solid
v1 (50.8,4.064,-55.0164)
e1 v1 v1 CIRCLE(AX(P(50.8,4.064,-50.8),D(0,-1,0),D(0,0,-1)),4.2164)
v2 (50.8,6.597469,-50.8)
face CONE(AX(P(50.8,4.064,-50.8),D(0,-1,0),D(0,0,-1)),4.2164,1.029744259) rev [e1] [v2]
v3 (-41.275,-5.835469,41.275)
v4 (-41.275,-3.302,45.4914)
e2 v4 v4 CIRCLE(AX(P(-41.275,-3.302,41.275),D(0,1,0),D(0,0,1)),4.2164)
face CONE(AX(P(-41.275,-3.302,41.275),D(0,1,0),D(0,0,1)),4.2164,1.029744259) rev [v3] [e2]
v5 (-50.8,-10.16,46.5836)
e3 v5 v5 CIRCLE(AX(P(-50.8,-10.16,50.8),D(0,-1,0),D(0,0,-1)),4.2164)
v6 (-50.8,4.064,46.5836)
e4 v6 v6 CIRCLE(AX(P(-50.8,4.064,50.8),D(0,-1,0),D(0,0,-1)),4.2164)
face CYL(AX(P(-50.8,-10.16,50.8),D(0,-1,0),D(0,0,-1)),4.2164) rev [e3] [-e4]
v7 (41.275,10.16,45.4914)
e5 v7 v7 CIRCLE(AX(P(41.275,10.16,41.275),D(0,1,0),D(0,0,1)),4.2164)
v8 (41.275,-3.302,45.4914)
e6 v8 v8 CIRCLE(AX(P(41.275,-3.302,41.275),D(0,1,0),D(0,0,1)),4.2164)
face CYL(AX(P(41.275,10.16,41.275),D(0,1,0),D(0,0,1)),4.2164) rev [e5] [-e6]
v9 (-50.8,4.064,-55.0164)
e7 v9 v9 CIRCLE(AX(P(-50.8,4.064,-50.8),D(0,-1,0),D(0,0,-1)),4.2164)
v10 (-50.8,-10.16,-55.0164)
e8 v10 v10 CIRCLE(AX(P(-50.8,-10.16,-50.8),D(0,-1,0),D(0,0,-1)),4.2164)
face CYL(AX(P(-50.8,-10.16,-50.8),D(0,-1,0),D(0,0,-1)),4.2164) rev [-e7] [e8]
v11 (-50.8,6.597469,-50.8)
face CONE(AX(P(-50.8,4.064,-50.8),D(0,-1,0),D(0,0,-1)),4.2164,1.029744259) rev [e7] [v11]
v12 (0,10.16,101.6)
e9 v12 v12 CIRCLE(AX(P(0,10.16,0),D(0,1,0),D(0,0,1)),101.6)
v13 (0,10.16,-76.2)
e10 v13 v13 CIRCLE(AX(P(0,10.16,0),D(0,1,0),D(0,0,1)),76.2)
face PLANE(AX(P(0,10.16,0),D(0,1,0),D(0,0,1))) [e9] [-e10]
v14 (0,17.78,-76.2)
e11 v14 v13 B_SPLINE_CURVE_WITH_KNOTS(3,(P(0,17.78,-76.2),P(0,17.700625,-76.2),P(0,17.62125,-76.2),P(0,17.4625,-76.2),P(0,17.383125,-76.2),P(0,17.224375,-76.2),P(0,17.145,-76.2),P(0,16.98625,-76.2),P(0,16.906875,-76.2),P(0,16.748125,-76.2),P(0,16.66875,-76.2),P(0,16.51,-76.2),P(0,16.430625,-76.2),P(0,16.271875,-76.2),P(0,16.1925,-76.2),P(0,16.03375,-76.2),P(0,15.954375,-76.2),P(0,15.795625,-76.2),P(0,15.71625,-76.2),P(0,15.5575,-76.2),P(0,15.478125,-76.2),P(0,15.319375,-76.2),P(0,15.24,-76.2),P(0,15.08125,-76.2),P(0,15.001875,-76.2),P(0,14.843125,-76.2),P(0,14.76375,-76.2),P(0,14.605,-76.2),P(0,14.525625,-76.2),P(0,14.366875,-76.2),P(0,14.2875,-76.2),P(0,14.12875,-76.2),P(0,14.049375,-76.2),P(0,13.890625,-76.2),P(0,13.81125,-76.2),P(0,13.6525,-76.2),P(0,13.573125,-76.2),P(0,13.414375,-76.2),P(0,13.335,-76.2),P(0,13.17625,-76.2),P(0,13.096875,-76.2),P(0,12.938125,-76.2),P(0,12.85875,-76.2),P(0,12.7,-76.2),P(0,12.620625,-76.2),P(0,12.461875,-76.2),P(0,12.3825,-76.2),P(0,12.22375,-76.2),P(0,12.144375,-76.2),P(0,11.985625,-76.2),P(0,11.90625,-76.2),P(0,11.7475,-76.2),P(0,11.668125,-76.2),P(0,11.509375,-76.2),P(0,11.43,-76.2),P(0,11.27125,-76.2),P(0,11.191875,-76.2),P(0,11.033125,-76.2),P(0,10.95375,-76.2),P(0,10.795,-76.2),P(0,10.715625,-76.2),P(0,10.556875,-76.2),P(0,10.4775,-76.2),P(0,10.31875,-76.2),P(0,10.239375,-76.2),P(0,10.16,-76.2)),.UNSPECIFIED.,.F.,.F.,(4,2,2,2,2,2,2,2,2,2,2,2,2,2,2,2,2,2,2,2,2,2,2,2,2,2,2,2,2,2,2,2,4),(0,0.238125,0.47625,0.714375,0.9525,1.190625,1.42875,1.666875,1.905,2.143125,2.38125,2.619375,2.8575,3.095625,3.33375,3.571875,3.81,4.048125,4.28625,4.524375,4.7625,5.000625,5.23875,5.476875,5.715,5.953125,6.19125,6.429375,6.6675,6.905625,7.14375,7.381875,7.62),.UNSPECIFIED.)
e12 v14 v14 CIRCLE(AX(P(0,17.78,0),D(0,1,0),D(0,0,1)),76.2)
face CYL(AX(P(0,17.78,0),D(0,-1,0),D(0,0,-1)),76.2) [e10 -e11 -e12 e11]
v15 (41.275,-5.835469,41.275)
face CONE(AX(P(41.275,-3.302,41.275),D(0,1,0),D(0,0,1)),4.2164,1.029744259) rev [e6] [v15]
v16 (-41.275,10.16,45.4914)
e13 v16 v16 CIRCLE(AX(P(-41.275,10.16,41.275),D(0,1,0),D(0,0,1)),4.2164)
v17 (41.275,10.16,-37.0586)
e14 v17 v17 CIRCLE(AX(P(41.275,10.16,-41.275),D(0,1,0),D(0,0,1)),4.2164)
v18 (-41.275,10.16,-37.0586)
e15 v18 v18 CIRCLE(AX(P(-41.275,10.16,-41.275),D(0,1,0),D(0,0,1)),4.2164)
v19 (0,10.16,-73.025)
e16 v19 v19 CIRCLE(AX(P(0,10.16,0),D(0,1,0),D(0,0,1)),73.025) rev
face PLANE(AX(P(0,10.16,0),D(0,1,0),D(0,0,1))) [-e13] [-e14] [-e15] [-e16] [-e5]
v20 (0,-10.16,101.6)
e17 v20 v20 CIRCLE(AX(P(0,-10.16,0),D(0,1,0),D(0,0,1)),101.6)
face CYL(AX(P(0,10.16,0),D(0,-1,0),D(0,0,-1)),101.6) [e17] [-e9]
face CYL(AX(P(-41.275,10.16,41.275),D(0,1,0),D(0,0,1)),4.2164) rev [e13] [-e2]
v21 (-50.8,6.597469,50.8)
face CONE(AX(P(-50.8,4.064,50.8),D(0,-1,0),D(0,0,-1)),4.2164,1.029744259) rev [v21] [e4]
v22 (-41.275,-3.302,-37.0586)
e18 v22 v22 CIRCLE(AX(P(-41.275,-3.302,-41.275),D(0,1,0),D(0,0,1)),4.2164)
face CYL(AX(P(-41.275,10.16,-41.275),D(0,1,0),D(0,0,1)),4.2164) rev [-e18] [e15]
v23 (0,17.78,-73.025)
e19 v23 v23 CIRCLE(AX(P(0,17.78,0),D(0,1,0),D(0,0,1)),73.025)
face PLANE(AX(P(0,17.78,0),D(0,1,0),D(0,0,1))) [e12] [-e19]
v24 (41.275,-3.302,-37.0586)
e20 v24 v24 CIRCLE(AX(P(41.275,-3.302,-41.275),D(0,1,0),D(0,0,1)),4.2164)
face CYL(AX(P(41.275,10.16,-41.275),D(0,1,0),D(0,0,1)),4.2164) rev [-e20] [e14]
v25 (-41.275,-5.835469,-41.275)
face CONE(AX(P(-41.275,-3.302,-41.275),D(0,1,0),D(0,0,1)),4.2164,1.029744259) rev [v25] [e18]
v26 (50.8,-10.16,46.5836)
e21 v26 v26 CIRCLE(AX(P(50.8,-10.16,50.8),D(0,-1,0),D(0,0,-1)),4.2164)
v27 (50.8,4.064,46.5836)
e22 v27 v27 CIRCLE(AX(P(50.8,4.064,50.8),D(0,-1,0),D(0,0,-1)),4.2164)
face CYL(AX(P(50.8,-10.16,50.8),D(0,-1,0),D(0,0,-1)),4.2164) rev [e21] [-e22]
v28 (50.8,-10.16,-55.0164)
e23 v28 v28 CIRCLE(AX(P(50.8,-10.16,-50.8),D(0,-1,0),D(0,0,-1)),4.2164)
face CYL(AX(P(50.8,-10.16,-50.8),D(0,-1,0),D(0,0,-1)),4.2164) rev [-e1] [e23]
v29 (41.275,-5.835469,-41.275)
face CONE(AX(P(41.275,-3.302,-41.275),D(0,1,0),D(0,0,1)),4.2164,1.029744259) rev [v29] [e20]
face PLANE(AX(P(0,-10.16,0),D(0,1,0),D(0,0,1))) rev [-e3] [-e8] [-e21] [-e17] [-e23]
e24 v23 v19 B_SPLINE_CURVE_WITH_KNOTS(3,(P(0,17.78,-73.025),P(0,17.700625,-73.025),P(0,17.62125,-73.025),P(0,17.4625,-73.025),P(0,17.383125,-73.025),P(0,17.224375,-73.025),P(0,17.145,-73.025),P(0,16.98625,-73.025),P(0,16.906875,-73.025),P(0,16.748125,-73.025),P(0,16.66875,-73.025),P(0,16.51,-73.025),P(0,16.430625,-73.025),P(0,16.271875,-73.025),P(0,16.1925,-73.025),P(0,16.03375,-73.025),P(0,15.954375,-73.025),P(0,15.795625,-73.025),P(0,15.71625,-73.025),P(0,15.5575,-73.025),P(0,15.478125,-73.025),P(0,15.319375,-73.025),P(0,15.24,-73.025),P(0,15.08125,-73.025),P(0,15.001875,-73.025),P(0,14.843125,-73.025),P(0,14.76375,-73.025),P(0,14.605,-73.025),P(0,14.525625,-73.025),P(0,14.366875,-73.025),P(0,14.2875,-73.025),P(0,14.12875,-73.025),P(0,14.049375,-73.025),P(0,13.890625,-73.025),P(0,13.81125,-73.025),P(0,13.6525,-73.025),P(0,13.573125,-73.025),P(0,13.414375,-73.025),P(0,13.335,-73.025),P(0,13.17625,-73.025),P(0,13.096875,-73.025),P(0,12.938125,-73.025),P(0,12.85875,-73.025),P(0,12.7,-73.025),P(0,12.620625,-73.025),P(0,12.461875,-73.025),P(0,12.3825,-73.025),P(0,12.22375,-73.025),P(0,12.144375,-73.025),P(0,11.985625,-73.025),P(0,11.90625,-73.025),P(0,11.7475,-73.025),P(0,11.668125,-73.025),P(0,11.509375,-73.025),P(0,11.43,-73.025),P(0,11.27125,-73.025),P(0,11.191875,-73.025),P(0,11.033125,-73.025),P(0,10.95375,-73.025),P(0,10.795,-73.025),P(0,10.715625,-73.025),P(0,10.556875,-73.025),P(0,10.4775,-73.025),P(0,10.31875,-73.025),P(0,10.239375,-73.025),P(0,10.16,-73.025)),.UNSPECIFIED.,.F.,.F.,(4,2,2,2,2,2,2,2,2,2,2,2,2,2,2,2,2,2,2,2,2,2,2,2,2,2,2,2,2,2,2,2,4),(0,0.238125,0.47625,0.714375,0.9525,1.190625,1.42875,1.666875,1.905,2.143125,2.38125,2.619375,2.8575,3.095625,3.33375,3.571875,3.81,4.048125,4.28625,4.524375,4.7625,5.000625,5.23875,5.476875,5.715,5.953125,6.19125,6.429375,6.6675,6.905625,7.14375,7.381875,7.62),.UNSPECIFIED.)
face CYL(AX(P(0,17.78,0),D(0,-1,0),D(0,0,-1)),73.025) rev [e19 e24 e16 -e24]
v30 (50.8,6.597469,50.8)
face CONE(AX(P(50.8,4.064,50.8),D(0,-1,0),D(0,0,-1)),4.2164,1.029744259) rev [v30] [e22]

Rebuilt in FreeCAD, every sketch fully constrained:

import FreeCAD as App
import Part
import Sketcher

V = App.Vector
Q = App.Units.Quantity

doc = App.newDocument("Part")
params = doc.addObject("Spreadsheet::Sheet", "Params")
for row, (alias, value) in enumerate([
    ("sketch1_diameter", "8 in"),
    ("pad1_length", "0.8 in"),
    ("sketch2_diameter", "0.332 in"),
    ("hole_diameter", "0.332 in"),
    ("hole_depth", "0.53 in"),
    ("sketch3_diameter", "0.332 in"),
    ("hole2_diameter", "0.332 in"),
    ("hole2_depth", "0.56 in"),
    ("sketch4_diameter", "6 in"),
    ("sketch4_diameter2", "5.75 in"),
    ("pad2_length", "0.3 in"),
], start=1):
    params.set(f"A{row}", alias)
    params.set(f"B{row}", "=" + value)
    params.setAlias(f"B{row}", alias)

body = doc.addObject("PartDesign::Body", "Body")

# Sketch on XZ plane
sketch1 = body.newObject("Sketcher::SketchObject", "Sketch")
sketch1.AttachmentSupport = (doc.getObject("XZ_Plane"), [""])
sketch1.MapMode = "FlatFace"
sketch1.addGeometry(Part.Circle(V(0, 0, 0), V(0, 0, 1), 101.6), False)
sketch1.addConstraint([
    Sketcher.Constraint("Coincident", 0, 3, -1, 1),
    Sketcher.Constraint("Diameter", 0, Q("8 in")),
])
sketch1.setExpression("Constraints[1]", "Params.sketch1_diameter")
pad1 = body.newObject("PartDesign::Pad", "Pad")
pad1.Profile = sketch1
pad1.setExpression("Length", "Params.pad1_length")
pad1.Midplane = True

# Sketch on XZ plane
sketch2 = body.newObject("Sketcher::SketchObject", "Sketch001")
sketch2.AttachmentSupport = (doc.getObject("XZ_Plane"), [""])
sketch2.MapMode = "FlatFace"
sketch2.AttachmentOffset = App.Placement(V(0, 0, -0.4 * 25.4), App.Rotation())
sketch2.addGeometry([
    Part.Circle(V(-41.275, -41.275, 0), V(0, 0, 1), 4.2164),
    Part.Circle(V(41.275, -41.275, 0), V(0, 0, 1), 4.2164),
    Part.Circle(V(41.275, 41.275, 0), V(0, 0, 1), 4.2164),
    Part.Circle(V(-41.275, 41.275, 0), V(0, 0, 1), 4.2164),
], False)
sketch2.addConstraint([
    Sketcher.Constraint("Equal", 0, 1),
    Sketcher.Constraint("Equal", 1, 2),
    Sketcher.Constraint("Equal", 2, 3),
    Sketcher.Constraint("Symmetric", 0, 3, 2, 3, -1, 1),
    Sketcher.Constraint("Symmetric", 1, 3, 3, 3, -1, 1),
    Sketcher.Constraint("Symmetric", 0, 3, 1, 3, -2),
    Sketcher.Constraint("Diameter", 0, Q("0.332 in")),
    Sketcher.Constraint("DistanceX", 0, 3, 1, 3, Q("3.25 in")),
    Sketcher.Constraint("DistanceY", 1, 3, 2, 3, Q("3.25 in")),
])
sketch2.setExpression("Constraints[6]", "Params.sketch2_diameter")
doc.recompute()
hole = body.newObject("PartDesign::Hole", "Hole")
hole.Profile = sketch2
hole.ThreadType = "None"
hole.setExpression("Diameter", "Params.hole_diameter")
hole.DepthType = "Dimension"
hole.setExpression("Depth", "Params.hole_depth")
hole.DrillPoint = "Angled"
hole.DrillPointAngle = 118
hole.Reversed = True

# Sketch on XZ plane
sketch3 = body.newObject("Sketcher::SketchObject", "Sketch002")
sketch3.AttachmentSupport = (doc.getObject("XZ_Plane"), [""])
sketch3.MapMode = "FlatFace"
sketch3.AttachmentOffset = App.Placement(V(0, 0, 0.4 * 25.4), App.Rotation())
sketch3.addGeometry([
    Part.Circle(V(-50.8, 50.8, 0), V(0, 0, 1), 4.2164),
    Part.Circle(V(50.8, 50.8, 0), V(0, 0, 1), 4.2164),
    Part.Circle(V(50.8, -50.8, 0), V(0, 0, 1), 4.2164),
    Part.Circle(V(-50.8, -50.8, 0), V(0, 0, 1), 4.2164),
], False)
sketch3.addConstraint([
    Sketcher.Constraint("Equal", 0, 1),
    Sketcher.Constraint("Equal", 1, 2),
    Sketcher.Constraint("Equal", 2, 3),
    Sketcher.Constraint("Symmetric", 0, 3, 2, 3, -1, 1),
    Sketcher.Constraint("Symmetric", 1, 3, 3, 3, -1, 1),
    Sketcher.Constraint("Symmetric", 0, 3, 1, 3, -2),
    Sketcher.Constraint("Diameter", 0, Q("0.332 in")),
    Sketcher.Constraint("DistanceX", 0, 3, -1, 1, Q("2 in")),
    Sketcher.Constraint("DistanceY", -1, 1, 0, 3, Q("2 in")),
])
sketch3.setExpression("Constraints[6]", "Params.sketch3_diameter")
doc.recompute()
hole2 = body.newObject("PartDesign::Hole", "Hole001")
hole2.Profile = sketch3
hole2.ThreadType = "None"
hole2.setExpression("Diameter", "Params.hole2_diameter")
hole2.DepthType = "Dimension"
hole2.setExpression("Depth", "Params.hole2_depth")
hole2.DrillPoint = "Angled"
hole2.DrillPointAngle = 118

# Sketch on XZ plane
sketch4 = body.newObject("Sketcher::SketchObject", "Sketch003")
sketch4.AttachmentSupport = (doc.getObject("XZ_Plane"), [""])
sketch4.MapMode = "FlatFace"
sketch4.AttachmentOffset = App.Placement(V(0, 0, -0.4 * 25.4), App.Rotation())
sketch4.addGeometry([
    Part.Circle(V(0, 0, 0), V(0, 0, 1), 76.2),
    Part.Circle(V(0, 0, 0), V(0, 0, 1), 73.025),
], False)
sketch4.addConstraint([
    Sketcher.Constraint("Coincident", 0, 3, -1, 1),
    Sketcher.Constraint("Coincident", 1, 3, -1, 1),
    Sketcher.Constraint("Diameter", 0, Q("6 in")),
    Sketcher.Constraint("Diameter", 1, Q("5.75 in")),
])
sketch4.setExpression("Constraints[2]", "Params.sketch4_diameter")
sketch4.setExpression("Constraints[3]", "Params.sketch4_diameter2")
pad2 = body.newObject("PartDesign::Pad", "Pad001")
pad2.Profile = sketch4
pad2.setExpression("Length", "Params.pad2_length")
pad2.Reversed = True

doc.recompute()
